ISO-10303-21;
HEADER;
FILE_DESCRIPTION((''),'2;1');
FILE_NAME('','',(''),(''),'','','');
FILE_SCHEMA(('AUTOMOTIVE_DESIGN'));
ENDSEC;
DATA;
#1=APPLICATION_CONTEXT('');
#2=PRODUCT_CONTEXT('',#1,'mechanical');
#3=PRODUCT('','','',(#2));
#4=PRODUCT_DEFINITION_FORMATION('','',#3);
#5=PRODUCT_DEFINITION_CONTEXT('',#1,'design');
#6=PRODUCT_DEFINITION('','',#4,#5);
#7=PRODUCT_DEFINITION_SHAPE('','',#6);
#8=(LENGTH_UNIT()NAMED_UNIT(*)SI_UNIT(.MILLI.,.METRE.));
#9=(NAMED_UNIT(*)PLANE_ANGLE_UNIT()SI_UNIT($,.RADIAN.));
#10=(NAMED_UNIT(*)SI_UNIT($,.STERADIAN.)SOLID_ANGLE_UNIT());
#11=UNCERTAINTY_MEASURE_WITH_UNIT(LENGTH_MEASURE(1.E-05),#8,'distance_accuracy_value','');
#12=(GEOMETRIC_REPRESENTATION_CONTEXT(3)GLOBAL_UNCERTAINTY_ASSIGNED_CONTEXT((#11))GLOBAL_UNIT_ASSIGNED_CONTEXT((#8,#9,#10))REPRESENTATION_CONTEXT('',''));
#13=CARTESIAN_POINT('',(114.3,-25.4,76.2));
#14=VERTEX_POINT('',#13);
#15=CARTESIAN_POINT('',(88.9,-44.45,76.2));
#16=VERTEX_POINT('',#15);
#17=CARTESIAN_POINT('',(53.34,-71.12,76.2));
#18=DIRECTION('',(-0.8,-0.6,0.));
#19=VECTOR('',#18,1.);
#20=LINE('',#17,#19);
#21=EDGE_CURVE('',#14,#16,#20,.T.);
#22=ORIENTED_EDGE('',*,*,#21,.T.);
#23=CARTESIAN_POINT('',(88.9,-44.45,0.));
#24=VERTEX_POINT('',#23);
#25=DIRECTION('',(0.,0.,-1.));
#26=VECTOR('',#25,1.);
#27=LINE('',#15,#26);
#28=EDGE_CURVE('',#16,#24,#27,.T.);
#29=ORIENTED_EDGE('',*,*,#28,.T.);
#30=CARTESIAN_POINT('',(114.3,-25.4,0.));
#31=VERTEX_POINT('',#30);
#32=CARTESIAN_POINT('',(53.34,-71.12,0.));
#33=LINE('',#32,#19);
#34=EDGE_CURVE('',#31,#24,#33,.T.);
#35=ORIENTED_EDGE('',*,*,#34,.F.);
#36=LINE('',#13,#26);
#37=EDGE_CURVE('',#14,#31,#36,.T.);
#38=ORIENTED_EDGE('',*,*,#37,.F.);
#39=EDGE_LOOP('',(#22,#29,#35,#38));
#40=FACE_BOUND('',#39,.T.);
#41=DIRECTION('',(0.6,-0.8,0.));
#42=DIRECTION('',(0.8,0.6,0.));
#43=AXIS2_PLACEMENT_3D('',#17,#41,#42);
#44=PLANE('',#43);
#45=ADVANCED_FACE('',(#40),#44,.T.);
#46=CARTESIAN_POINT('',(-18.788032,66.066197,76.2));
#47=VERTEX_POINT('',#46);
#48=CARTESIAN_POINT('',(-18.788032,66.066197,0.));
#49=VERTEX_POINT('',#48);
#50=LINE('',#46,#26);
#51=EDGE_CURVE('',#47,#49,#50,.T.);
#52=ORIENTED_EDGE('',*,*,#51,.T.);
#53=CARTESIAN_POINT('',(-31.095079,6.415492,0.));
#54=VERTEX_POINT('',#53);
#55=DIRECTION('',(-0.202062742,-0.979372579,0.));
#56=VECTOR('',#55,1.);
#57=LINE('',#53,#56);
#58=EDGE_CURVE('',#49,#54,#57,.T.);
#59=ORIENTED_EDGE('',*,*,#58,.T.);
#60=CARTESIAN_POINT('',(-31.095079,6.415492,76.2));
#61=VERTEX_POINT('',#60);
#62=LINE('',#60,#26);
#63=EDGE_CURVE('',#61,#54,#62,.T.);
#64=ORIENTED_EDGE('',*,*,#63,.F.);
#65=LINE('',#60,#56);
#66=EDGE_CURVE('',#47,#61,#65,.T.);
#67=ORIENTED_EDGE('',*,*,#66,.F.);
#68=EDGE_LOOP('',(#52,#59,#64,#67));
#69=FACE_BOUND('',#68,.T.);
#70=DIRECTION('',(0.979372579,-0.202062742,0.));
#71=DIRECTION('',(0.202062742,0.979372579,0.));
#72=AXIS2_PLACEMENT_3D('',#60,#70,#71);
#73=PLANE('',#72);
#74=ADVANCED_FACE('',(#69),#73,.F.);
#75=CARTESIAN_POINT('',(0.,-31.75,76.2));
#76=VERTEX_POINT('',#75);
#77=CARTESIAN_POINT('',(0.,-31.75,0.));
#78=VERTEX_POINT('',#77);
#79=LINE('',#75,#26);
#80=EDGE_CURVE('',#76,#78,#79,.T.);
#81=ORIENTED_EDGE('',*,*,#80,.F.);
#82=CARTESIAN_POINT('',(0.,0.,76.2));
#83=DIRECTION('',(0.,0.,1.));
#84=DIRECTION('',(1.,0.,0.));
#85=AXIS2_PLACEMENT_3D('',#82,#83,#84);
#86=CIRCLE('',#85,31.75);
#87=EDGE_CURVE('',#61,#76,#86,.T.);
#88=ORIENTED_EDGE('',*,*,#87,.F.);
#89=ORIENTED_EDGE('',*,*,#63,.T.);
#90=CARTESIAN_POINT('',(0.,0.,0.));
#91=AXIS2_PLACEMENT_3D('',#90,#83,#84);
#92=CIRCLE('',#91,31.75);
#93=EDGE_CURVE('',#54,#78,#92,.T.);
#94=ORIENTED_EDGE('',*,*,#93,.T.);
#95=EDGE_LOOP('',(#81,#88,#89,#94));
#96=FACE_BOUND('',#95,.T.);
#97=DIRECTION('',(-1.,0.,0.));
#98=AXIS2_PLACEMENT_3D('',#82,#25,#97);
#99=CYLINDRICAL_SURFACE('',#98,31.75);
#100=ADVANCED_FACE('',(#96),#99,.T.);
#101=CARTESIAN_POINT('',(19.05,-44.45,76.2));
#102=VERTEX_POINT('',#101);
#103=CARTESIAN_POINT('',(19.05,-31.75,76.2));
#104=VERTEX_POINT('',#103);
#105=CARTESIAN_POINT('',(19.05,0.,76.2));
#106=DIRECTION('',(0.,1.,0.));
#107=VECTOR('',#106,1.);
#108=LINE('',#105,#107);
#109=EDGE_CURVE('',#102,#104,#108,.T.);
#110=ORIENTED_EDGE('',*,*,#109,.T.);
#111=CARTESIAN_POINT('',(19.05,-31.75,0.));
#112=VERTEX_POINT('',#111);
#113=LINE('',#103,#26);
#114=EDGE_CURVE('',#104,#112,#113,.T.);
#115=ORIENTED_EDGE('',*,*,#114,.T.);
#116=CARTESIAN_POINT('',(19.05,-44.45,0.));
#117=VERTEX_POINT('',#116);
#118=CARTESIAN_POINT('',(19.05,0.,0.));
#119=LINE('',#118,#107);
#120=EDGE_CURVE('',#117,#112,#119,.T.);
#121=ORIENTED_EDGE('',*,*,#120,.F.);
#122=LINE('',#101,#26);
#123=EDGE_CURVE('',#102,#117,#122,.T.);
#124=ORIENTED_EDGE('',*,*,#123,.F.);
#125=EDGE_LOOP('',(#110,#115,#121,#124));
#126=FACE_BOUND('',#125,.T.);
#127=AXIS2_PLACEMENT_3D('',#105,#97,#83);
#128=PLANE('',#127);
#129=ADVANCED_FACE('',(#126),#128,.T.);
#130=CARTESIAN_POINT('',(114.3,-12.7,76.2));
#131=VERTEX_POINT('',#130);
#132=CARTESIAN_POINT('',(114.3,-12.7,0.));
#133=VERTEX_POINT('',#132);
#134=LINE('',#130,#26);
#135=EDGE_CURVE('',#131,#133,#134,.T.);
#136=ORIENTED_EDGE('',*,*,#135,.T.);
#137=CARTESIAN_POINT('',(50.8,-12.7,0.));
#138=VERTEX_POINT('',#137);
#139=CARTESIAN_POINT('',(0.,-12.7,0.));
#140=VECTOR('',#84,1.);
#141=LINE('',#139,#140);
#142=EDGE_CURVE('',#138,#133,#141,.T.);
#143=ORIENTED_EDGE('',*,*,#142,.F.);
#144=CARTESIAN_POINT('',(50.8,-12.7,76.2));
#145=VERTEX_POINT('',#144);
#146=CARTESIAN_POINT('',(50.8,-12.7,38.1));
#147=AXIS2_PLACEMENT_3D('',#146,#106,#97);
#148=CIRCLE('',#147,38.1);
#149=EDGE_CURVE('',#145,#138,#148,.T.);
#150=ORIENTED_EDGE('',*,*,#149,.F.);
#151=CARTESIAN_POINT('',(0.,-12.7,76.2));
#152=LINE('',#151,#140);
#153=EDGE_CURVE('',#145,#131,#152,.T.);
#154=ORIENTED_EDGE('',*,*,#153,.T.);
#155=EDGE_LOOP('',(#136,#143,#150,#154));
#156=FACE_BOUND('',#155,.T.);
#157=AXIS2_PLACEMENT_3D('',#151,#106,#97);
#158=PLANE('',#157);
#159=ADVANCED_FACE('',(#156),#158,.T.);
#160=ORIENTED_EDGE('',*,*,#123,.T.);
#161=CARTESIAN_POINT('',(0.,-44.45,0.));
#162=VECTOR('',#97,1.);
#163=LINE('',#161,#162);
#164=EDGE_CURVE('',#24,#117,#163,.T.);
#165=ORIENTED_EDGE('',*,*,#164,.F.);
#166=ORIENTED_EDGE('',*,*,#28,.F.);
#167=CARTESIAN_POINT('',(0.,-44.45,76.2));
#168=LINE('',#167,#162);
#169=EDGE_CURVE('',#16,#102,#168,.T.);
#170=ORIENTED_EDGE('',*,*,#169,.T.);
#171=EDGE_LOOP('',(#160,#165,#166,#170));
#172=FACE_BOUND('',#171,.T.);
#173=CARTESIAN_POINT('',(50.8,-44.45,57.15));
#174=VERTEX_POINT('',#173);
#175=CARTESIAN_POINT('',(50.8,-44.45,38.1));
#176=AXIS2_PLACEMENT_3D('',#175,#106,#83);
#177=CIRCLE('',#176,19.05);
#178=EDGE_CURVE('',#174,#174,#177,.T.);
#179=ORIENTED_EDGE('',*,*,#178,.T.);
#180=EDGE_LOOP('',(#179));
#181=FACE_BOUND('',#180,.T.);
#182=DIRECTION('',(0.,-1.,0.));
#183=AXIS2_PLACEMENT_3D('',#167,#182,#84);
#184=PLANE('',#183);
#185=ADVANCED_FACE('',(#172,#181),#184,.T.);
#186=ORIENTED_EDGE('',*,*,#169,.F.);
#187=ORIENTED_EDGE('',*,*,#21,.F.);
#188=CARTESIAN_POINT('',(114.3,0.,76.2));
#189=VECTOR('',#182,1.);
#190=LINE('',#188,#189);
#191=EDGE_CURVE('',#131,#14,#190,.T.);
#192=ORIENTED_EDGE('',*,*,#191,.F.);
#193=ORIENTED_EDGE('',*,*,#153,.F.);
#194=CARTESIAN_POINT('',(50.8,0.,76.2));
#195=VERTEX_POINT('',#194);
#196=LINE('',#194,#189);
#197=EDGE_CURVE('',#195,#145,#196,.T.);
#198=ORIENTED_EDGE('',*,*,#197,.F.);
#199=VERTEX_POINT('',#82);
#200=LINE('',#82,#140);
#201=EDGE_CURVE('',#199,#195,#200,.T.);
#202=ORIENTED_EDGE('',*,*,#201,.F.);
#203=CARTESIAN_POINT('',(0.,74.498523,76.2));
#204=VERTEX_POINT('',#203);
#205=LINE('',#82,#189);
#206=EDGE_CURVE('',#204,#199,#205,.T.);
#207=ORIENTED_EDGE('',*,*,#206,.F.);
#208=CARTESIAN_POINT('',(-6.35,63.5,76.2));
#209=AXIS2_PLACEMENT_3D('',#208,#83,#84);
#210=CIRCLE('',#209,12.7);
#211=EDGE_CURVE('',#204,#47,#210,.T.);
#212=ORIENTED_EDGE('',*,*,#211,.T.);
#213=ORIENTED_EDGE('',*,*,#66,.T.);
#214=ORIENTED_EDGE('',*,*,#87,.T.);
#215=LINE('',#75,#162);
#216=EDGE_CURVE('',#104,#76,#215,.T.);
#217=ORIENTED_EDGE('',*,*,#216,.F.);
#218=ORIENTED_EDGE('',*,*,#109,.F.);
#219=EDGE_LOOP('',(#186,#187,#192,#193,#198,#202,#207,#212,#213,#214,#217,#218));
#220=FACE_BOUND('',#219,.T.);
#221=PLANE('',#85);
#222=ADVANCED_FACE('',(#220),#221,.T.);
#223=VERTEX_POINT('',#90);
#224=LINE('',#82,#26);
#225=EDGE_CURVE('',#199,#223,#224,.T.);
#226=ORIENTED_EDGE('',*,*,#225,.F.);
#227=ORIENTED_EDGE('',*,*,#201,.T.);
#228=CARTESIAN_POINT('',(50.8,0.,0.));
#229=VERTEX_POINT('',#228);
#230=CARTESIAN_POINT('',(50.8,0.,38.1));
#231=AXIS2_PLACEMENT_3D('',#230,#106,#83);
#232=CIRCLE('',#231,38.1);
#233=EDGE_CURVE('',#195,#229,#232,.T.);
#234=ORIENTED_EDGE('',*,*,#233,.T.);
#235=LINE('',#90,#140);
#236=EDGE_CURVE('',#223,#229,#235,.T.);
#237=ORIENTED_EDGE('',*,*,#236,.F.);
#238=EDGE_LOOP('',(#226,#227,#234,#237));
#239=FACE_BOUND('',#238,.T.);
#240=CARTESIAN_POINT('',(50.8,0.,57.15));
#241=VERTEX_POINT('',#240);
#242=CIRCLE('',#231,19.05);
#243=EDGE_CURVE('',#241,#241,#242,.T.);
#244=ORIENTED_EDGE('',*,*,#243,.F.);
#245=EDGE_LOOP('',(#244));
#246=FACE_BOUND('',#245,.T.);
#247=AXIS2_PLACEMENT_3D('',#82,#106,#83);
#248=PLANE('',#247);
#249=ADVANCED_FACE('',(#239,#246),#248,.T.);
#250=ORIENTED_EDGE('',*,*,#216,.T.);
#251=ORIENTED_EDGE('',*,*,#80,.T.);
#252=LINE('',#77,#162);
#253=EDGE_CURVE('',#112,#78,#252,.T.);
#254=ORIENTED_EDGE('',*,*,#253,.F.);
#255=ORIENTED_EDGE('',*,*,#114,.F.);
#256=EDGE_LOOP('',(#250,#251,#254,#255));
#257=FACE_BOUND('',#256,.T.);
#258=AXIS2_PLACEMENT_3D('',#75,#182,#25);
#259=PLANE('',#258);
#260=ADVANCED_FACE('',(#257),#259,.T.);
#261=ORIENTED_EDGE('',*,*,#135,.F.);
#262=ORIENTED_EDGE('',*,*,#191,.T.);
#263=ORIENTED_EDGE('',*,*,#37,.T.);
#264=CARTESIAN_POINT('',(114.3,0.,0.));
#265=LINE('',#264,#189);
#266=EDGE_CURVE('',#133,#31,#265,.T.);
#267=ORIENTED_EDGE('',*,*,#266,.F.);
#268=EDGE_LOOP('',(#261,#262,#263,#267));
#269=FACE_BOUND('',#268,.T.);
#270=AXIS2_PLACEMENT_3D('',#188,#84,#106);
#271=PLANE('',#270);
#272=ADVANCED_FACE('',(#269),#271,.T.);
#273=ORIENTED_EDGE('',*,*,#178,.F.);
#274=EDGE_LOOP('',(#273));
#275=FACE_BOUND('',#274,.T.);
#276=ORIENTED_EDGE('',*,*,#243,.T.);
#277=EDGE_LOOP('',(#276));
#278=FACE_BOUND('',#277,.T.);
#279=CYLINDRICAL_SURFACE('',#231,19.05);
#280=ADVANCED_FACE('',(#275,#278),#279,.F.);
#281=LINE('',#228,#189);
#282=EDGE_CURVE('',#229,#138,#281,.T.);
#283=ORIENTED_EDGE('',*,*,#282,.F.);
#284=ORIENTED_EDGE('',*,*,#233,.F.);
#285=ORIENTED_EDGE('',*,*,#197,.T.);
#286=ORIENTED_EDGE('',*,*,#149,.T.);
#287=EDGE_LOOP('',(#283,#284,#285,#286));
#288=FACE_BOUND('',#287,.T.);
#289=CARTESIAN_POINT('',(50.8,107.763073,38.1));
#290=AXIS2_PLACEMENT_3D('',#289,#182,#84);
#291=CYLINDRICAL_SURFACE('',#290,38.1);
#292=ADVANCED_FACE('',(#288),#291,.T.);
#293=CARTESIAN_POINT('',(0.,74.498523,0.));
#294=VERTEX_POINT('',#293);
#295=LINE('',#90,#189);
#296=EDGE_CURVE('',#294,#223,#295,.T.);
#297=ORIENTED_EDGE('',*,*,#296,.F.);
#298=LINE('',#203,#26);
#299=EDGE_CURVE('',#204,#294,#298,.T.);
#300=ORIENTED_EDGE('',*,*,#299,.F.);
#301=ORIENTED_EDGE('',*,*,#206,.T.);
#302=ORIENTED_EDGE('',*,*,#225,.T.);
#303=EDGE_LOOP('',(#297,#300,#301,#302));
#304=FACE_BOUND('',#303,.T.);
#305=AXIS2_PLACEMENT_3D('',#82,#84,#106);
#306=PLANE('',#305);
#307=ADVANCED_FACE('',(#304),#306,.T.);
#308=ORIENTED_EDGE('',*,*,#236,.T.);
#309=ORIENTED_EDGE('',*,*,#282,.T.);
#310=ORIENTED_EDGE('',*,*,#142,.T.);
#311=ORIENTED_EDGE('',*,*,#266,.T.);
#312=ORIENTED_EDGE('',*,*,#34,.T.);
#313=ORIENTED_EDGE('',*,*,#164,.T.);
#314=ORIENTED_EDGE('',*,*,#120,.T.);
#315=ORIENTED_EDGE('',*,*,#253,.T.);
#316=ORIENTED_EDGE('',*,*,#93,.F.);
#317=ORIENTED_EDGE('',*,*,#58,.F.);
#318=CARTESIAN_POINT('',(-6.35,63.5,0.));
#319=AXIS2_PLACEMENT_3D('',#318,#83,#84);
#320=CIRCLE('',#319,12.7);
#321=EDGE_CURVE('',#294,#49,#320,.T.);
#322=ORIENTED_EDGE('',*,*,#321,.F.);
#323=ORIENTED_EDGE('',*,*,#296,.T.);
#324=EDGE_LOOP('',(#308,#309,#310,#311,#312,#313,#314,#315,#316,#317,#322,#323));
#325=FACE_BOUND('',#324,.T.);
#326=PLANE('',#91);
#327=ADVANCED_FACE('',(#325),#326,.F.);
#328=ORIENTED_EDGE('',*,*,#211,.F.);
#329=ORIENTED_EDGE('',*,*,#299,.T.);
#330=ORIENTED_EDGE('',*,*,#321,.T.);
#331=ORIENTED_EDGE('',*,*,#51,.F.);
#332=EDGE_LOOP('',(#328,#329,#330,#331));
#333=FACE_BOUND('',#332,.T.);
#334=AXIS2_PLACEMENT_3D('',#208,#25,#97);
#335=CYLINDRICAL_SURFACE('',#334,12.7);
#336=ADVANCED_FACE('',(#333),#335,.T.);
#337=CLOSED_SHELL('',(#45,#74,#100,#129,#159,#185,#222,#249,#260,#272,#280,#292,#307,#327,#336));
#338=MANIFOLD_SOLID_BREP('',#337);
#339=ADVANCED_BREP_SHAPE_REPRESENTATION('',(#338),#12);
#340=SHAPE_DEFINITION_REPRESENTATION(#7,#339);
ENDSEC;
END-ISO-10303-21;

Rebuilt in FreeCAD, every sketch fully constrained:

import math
import FreeCAD as App
import Part
import Sketcher
from FreeCAD import Vector
Q = App.Units.Quantity

doc = App.newDocument("Part")
body = doc.addObject("PartDesign::Body", "Body")

# Sketch on XY plane
sketch1 = body.newObject("Sketcher::SketchObject", "Sketch")
sketch1.AttachmentSupport = (doc.getObject("XY_Plane"), [""])
sketch1.MapMode = "FlatFace"
sketch1.addGeometry(Part.ArcOfCircle(Part.Circle(Vector(-6, 64, 0), Vector(0, 0, 1), 13), math.radians(60), math.radians(168)), False)
sketch1.addGeometry(Part.LineSegment(Vector(-19, 66, 0), Vector(-31, 6, 0)), False)
sketch1.addGeometry(Part.ArcOfCircle(Part.Circle(Vector(0, 0, 0), Vector(0, 0, 1), 32), math.radians(168), math.radians(270)), False)
sketch1.addGeometry(Part.LineSegment(Vector(0, -32, 0), Vector(19, -32, 0)), False)
sketch1.addGeometry(Part.LineSegment(Vector(19, -32, 0), Vector(19, -44, 0)), False)
sketch1.addGeometry(Part.LineSegment(Vector(19, -44, 0), Vector(89, -44, 0)), False)
sketch1.addGeometry(Part.LineSegment(Vector(89, -44, 0), Vector(114, -25, 0)), False)
sketch1.addGeometry(Part.LineSegment(Vector(114, -25, 0), Vector(114, -13, 0)), False)
sketch1.addGeometry(Part.LineSegment(Vector(114, -13, 0), Vector(51, -13, 0)), False)
sketch1.addGeometry(Part.LineSegment(Vector(51, -13, 0), Vector(51, 0, 0)), False)
sketch1.addGeometry(Part.LineSegment(Vector(51, 0, 0), Vector(0, 0, 0)), False)
sketch1.addGeometry(Part.LineSegment(Vector(0, 0, 0), Vector(0, 74, 0)), False)
sketch1.addConstraint(Sketcher.Constraint("Tangent", 0, 2, 1, 1))
sketch1.addConstraint(Sketcher.Constraint("Tangent", 1, 2, 2, 1))
sketch1.addConstraint(Sketcher.Constraint("Tangent", 2, 2, 3, 1))
sketch1.addConstraint(Sketcher.Constraint("Coincident", 3, 2, 4, 1))
sketch1.addConstraint(Sketcher.Constraint("Coincident", 4, 2, 5, 1))
sketch1.addConstraint(Sketcher.Constraint("Coincident", 5, 2, 6, 1))
sketch1.addConstraint(Sketcher.Constraint("Coincident", 6, 2, 7, 1))
sketch1.addConstraint(Sketcher.Constraint("Coincident", 7, 2, 8, 1))
sketch1.addConstraint(Sketcher.Constraint("Coincident", 8, 2, 9, 1))
sketch1.addConstraint(Sketcher.Constraint("Coincident", 9, 2, 10, 1))
sketch1.addConstraint(Sketcher.Constraint("Coincident", 10, 2, 11, 1))
sketch1.addConstraint(Sketcher.Constraint("Coincident", 11, 2, 0, 1))
sketch1.addConstraint(Sketcher.Constraint("Horizontal", 3))
sketch1.addConstraint(Sketcher.Constraint("Vertical", 4))
sketch1.addConstraint(Sketcher.Constraint("Horizontal", 5))
sketch1.addConstraint(Sketcher.Constraint("Vertical", 7))
sketch1.addConstraint(Sketcher.Constraint("Horizontal", 8))
sketch1.addConstraint(Sketcher.Constraint("Vertical", 9))
sketch1.addConstraint(Sketcher.Constraint("Horizontal", 10))
sketch1.addConstraint(Sketcher.Constraint("Vertical", 11))
sketch1.addConstraint(Sketcher.Constraint("Coincident", 2, 3, -1, 1))
sketch1.addConstraint(Sketcher.Constraint("Coincident", 10, 2, -1, 1))
sketch1.addConstraint(Sketcher.Constraint("Equal", 4, 7))
sketch1.addConstraint(Sketcher.Constraint("Equal", 7, 9))
sketch1.addConstraint(Sketcher.Constraint("Radius", 0, Q("0.5 in")))
sketch1.addConstraint(Sketcher.Constraint("DistanceX", 10, 2, 10, 1, Q("2 in")))
sketch1.addConstraint(Sketcher.Constraint("Radius", 2, Q("1.25 in")))
sketch1.addConstraint(Sketcher.Constraint("DistanceX", 8, 2, 8, 1, Q("2.5 in")))
sketch1.addConstraint(Sketcher.Constraint("DistanceY", 4, 2, 4, 1, Q("0.5 in")))
sketch1.addConstraint(Sketcher.Constraint("DistanceX", 0, 3, 3, 2, Q("1 in")))
sketch1.addConstraint(Sketcher.Constraint("DistanceX", 5, 2, 6, 2, Q("1 in")))
sketch1.addConstraint(Sketcher.Constraint("DistanceX", 3, 1, 3, 2, Q("0.75 in")))
sketch1.addConstraint(Sketcher.Constraint("DistanceY", -1, 1, 0, 3, Q("2.5 in")))
pad1 = body.newObject("PartDesign::Pad", "Pad")
pad1.Profile = sketch1
pad1.Length = Q("3 in")

# Sketch on XZ plane
sketch2 = body.newObject("Sketcher::SketchObject", "Sketch001")
sketch2.AttachmentSupport = (doc.getObject("XZ_Plane"), [""])
sketch2.MapMode = "FlatFace"
sketch2.AttachmentOffset = App.Placement(Vector(0, 0, 0.5 * 25.4), App.Rotation())
sketch2.addGeometry(Part.Circle(Vector(51, 38, 0), Vector(0, 0, 1), 38), False)
sketch2.addConstraint(Sketcher.Constraint("Diameter", 0, Q("3 in")))
sketch2.addConstraint(Sketcher.Constraint("DistanceX", -1, 1, 0, 3, Q("2 in")))
sketch2.addConstraint(Sketcher.Constraint("DistanceY", -1, 1, 0, 3, Q("1.5 in")))
pad2 = body.newObject("PartDesign::Pad", "Pad001")
pad2.Profile = sketch2
pad2.Length = Q("0.5 in")
pad2.Reversed = True

# Sketch on XZ plane
sketch3 = body.newObject("Sketcher::SketchObject", "Sketch002")
sketch3.AttachmentSupport = (doc.getObject("XZ_Plane"), [""])
sketch3.MapMode = "FlatFace"
sketch3.addGeometry(Part.Circle(Vector(51, 38, 0), Vector(0, 0, 1), 19), False)
sketch3.addConstraint(Sketcher.Constraint("Diameter", 0, Q("1.5 in")))
sketch3.addConstraint(Sketcher.Constraint("DistanceX", -1, 1, 0, 3, Q("2 in")))
sketch3.addConstraint(Sketcher.Constraint("DistanceY", -1, 1, 0, 3, Q("1.5 in")))
doc.recompute()
hole = body.newObject("PartDesign::Hole", "Hole")
hole.Profile = sketch3
hole.ThreadType = "None"
hole.Diameter = Q("1.5 in")
hole.DepthType = "ThroughAll"
hole.Reversed = True

doc.recompute()
